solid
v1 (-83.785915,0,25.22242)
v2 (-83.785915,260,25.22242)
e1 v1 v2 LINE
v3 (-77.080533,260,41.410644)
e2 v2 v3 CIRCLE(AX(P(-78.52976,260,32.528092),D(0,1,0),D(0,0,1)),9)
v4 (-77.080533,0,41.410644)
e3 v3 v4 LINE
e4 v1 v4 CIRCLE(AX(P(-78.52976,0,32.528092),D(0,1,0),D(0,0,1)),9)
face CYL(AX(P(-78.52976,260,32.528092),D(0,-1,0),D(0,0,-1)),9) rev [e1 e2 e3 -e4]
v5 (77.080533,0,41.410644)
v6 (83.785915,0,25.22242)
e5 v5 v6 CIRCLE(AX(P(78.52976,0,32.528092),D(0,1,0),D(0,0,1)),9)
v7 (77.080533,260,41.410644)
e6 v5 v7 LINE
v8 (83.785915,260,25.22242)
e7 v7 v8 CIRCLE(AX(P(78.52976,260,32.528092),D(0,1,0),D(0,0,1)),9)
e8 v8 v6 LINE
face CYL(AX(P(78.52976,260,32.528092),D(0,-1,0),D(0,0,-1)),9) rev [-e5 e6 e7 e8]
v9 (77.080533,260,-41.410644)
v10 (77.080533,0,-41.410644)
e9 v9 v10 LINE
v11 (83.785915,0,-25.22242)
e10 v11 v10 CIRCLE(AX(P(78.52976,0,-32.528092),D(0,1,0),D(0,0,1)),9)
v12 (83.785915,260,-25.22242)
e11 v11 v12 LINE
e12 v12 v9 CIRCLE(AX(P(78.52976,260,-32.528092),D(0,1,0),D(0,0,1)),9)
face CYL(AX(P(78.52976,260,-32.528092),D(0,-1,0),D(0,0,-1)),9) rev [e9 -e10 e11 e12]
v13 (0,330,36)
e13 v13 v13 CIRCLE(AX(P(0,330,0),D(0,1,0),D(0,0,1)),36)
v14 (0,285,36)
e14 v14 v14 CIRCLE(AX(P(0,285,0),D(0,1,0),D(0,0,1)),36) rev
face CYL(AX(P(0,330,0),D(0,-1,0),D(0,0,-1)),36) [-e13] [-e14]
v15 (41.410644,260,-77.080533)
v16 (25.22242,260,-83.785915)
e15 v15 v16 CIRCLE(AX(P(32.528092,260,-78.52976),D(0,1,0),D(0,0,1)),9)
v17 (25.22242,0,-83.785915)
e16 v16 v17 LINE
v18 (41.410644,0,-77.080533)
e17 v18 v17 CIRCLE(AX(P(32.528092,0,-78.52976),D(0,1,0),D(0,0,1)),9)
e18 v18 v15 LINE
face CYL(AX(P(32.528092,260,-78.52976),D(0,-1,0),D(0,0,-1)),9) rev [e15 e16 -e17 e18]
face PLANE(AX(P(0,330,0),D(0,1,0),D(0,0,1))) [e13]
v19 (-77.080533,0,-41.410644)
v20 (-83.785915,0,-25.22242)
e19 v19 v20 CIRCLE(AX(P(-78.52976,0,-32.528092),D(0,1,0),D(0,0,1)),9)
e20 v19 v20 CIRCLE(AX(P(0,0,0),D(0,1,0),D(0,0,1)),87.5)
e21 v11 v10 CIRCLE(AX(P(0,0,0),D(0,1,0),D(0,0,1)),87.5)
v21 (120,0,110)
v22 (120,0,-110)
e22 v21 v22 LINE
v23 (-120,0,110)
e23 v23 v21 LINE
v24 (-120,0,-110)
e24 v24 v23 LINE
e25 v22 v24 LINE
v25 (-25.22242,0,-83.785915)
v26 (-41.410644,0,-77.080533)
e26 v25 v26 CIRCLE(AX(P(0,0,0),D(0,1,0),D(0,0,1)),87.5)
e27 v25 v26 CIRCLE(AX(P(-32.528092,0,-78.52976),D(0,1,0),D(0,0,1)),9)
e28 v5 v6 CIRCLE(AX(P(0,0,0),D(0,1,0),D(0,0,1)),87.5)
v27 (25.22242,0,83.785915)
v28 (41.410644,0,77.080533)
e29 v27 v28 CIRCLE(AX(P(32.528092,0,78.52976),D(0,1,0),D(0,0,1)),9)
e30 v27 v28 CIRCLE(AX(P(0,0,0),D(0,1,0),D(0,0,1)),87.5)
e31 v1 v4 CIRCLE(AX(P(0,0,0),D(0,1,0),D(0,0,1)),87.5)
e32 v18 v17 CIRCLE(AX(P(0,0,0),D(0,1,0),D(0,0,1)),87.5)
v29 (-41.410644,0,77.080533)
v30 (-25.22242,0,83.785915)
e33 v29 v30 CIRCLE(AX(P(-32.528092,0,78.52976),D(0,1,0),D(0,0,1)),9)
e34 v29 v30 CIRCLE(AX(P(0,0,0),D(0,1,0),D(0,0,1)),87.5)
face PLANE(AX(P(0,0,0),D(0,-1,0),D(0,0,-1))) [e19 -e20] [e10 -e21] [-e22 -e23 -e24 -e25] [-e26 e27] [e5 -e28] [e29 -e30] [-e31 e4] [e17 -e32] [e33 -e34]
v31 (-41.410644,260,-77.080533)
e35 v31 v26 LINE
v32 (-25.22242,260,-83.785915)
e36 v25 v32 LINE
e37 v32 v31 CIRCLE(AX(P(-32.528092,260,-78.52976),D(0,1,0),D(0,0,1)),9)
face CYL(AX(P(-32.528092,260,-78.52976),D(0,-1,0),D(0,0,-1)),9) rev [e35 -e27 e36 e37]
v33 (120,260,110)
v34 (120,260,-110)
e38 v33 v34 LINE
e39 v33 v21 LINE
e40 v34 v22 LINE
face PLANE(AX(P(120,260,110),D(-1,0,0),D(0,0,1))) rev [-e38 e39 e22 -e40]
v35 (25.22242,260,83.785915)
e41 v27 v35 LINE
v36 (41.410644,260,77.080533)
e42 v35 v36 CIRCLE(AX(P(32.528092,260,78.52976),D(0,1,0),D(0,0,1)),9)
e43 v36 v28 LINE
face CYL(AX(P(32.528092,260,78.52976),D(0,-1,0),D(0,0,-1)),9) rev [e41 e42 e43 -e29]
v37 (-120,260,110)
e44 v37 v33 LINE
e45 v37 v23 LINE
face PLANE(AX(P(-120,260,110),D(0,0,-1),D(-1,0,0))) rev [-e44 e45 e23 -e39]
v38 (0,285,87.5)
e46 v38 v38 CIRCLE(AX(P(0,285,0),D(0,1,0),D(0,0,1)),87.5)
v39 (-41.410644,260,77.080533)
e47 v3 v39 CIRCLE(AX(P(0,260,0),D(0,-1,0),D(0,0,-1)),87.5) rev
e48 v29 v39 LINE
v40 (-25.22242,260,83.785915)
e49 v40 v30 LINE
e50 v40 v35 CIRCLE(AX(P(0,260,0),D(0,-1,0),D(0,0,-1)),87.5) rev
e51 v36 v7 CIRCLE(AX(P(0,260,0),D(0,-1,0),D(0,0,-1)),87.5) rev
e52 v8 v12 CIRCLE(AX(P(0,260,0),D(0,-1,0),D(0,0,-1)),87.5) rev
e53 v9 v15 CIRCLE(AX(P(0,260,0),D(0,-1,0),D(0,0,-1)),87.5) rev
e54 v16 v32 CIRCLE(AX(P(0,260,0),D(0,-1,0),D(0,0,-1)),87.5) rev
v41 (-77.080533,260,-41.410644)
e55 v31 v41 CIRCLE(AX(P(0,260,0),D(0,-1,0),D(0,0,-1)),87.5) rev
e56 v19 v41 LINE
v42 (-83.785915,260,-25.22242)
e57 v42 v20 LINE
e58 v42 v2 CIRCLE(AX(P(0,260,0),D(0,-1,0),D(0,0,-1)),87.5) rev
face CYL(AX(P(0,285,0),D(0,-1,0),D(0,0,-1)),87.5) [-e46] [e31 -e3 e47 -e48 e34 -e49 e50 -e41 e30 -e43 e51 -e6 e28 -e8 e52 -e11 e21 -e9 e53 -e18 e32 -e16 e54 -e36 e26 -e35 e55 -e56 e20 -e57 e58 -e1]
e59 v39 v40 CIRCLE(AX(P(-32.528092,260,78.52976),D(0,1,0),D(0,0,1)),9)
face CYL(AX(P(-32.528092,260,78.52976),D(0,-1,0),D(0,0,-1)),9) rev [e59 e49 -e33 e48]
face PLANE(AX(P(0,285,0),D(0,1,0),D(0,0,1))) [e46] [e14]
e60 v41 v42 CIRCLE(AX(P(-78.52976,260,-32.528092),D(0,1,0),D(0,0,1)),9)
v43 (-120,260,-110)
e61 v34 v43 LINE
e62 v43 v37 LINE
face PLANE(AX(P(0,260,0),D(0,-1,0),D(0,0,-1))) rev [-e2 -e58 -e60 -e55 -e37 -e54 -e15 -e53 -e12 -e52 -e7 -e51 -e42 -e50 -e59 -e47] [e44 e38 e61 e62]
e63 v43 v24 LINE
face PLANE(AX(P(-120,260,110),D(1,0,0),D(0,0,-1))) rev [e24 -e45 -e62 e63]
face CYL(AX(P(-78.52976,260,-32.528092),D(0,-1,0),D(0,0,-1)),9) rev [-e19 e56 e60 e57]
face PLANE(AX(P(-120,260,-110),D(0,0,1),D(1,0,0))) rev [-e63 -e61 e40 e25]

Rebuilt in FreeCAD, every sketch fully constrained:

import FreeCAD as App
import Part
import Sketcher

V = App.Vector

doc = App.newDocument("Part")
body = doc.addObject("PartDesign::Body", "Body")

# Sketch on XZ plane
sketch1 = body.newObject("Sketcher::SketchObject", "Sketch")
sketch1.AttachmentSupport = (doc.getObject("XZ_Plane"), [""])
sketch1.MapMode = "FlatFace"
sketch1.addGeometry(Part.LineSegment(V(-120, -110, 0), V(-120, 110, 0)), False)
sketch1.addGeometry(Part.LineSegment(V(-120, 110, 0), V(120, 110, 0)), False)
sketch1.addGeometry(Part.LineSegment(V(120, 110, 0), V(120, -110, 0)), False)
sketch1.addGeometry(Part.LineSegment(V(120, -110, 0), V(-120, -110, 0)), False)
sketch1.addGeometry(Part.Circle(V(-33, 79, 0), V(0, 0, 1), 9), False)
sketch1.addGeometry(Part.Circle(V(-79, 33, 0), V(0, 0, 1), 9), False)
sketch1.addGeometry(Part.Circle(V(33, 79, 0), V(0, 0, 1), 9), False)
sketch1.addGeometry(Part.Circle(V(79, 33, 0), V(0, 0, 1), 9), False)
sketch1.addGeometry(Part.Circle(V(-79, -33, 0), V(0, 0, 1), 9), False)
sketch1.addGeometry(Part.Circle(V(-33, -79, 0), V(0, 0, 1), 9), False)
sketch1.addGeometry(Part.Circle(V(79, -33, 0), V(0, 0, 1), 9), False)
sketch1.addGeometry(Part.Circle(V(33, -79, 0), V(0, 0, 1), 9), False)
sketch1.addConstraint(Sketcher.Constraint("Coincident", 0, 2, 1, 1))
sketch1.addConstraint(Sketcher.Constraint("Coincident", 1, 2, 2, 1))
sketch1.addConstraint(Sketcher.Constraint("Coincident", 2, 2, 3, 1))
sketch1.addConstraint(Sketcher.Constraint("Coincident", 3, 2, 0, 1))
sketch1.addConstraint(Sketcher.Constraint("Vertical", 0))
sketch1.addConstraint(Sketcher.Constraint("Horizontal", 1))
sketch1.addConstraint(Sketcher.Constraint("Vertical", 2))
sketch1.addConstraint(Sketcher.Constraint("Horizontal", 3))
sketch1.addConstraint(Sketcher.Constraint("Equal", 4, 5))
sketch1.addConstraint(Sketcher.Constraint("Equal", 5, 6))
sketch1.addConstraint(Sketcher.Constraint("Equal", 6, 7))
sketch1.addConstraint(Sketcher.Constraint("Equal", 7, 8))
sketch1.addConstraint(Sketcher.Constraint("Equal", 8, 9))
sketch1.addConstraint(Sketcher.Constraint("Equal", 9, 10))
sketch1.addConstraint(Sketcher.Constraint("Equal", 10, 11))
sketch1.addConstraint(Sketcher.Constraint("Symmetric", 7, 3, 8, 3, -1, 1))
sketch1.addConstraint(Sketcher.Constraint("Symmetric", 6, 3, 9, 3, -1, 1))
sketch1.addConstraint(Sketcher.Constraint("Symmetric", 5, 3, 10, 3, -1, 1))
sketch1.addConstraint(Sketcher.Constraint("Symmetric", 4, 3, 11, 3, -1, 1))
sketch1.addConstraint(Sketcher.Constraint("Symmetric", 0, 2, 2, 2, -1, 1))
sketch1.addConstraint(Sketcher.Constraint("Symmetric", 4, 3, 6, 3, -2))
sketch1.addConstraint(Sketcher.Constraint("Symmetric", 5, 3, 7, 3, -2))
sketch1.addConstraint(Sketcher.Constraint("Diameter", 4, 18.0))
sketch1.addConstraint(Sketcher.Constraint("DistanceX", 1, 1, 1, 2, 240.0))
sketch1.addConstraint(Sketcher.Constraint("DistanceY", 0, 1, 0, 2, 220.0))
sketch1.addConstraint(Sketcher.Constraint("DistanceX", 4, 3, -1, 1, 32.528092))
sketch1.addConstraint(Sketcher.Constraint("DistanceY", -1, 1, 4, 3, 78.52976))
sketch1.addConstraint(Sketcher.Constraint("DistanceX", 5, 3, -1, 1, 78.52976))
sketch1.addConstraint(Sketcher.Constraint("DistanceY", -1, 1, 5, 3, 32.528092))
pad1 = body.newObject("PartDesign::Pad", "Pad")
pad1.Profile = sketch1
pad1.Length = 260
pad1.Reversed = True

# Sketch on XZ plane
sketch2 = body.newObject("Sketcher::SketchObject", "Sketch001")
sketch2.AttachmentSupport = (doc.getObject("XZ_Plane"), [""])
sketch2.MapMode = "FlatFace"
sketch2.addGeometry(Part.Circle(V(0, 0, 0), V(0, 0, 1), 88), False)
sketch2.addConstraint(Sketcher.Constraint("Coincident", 0, 3, -1, 1))
sketch2.addConstraint(Sketcher.Constraint("Diameter", 0, 175.0))
pad2 = body.newObject("PartDesign::Pad", "Pad001")
pad2.Profile = sketch2
pad2.Length = 285
pad2.Reversed = True

# Sketch on XZ plane
sketch3 = body.newObject("Sketcher::SketchObject", "Sketch002")
sketch3.AttachmentSupport = (doc.getObject("XZ_Plane"), [""])
sketch3.MapMode = "FlatFace"
sketch3.addGeometry(Part.Circle(V(0, 0, 0), V(0, 0, 1), 36), False)
sketch3.addConstraint(Sketcher.Constraint("Coincident", 0, 3, -1, 1))
sketch3.addConstraint(Sketcher.Constraint("Diameter", 0, 72.0))
pad3 = body.newObject("PartDesign::Pad", "Pad002")
pad3.Profile = sketch3
pad3.Length = 330
pad3.Reversed = True

doc.recompute()
